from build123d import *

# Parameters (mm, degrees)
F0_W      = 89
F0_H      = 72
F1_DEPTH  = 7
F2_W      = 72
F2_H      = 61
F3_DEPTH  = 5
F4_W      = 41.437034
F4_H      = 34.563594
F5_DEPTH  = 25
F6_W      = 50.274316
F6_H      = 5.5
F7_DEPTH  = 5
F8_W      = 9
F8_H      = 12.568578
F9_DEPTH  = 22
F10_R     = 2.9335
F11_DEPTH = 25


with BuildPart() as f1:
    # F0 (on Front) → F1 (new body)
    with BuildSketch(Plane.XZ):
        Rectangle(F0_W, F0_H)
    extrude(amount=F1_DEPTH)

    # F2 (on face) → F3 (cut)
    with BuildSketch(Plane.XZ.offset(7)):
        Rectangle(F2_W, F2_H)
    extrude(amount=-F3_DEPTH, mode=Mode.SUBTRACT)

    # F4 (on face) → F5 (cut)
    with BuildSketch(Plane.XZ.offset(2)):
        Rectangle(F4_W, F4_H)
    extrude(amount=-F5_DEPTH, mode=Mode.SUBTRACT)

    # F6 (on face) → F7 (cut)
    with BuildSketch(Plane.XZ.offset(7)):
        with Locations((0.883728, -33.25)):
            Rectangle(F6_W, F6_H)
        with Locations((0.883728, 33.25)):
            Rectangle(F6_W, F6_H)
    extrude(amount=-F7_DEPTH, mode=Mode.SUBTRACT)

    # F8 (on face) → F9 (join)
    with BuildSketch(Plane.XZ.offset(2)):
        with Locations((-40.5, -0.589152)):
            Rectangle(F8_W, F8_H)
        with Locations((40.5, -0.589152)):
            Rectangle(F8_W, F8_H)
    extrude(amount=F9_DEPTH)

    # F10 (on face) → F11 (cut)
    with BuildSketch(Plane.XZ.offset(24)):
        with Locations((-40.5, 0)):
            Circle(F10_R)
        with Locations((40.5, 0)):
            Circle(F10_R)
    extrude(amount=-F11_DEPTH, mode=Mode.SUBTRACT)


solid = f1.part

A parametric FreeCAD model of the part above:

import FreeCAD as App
import Part
import Sketcher
from FreeCAD import Vector
Q = App.Units.Quantity

doc = App.newDocument("Part")
body = doc.addObject("PartDesign::Body", "Body")

sketch1 = body.newObject("Sketcher::SketchObject", "Sketch")
sketch1.AttachmentSupport = (doc.getObject("XZ_Plane"), [""])
sketch1.MapMode = "FlatFace"
sketch1.addGeometry(Part.LineSegment(Vector(-44, 36, 0), Vector(-44, -36, 0)), False)
sketch1.addGeometry(Part.LineSegment(Vector(-44, -36, 0), Vector(44, -36, 0)), False)
sketch1.addGeometry(Part.LineSegment(Vector(44, -36, 0), Vector(44, 36, 0)), False)
sketch1.addGeometry(Part.LineSegment(Vector(44, 36, 0), Vector(-44, 36, 0)), False)
sketch1.addConstraint(Sketcher.Constraint("Coincident", 0, 2, 1, 1))
sketch1.addConstraint(Sketcher.Constraint("Coincident", 1, 2, 2, 1))
sketch1.addConstraint(Sketcher.Constraint("Coincident", 2, 2, 3, 1))
sketch1.addConstraint(Sketcher.Constraint("Coincident", 3, 2, 0, 1))
sketch1.addConstraint(Sketcher.Constraint("Vertical", 0))
sketch1.addConstraint(Sketcher.Constraint("Horizontal", 1))
sketch1.addConstraint(Sketcher.Constraint("Vertical", 2))
sketch1.addConstraint(Sketcher.Constraint("Horizontal", 3))
sketch1.addConstraint(Sketcher.Constraint("Symmetric", 0, 2, 2, 2, -1, 1))
sketch1.addConstraint(Sketcher.Constraint("DistanceX", 1, 1, 1, 2, Q("89 mm")))
sketch1.addConstraint(Sketcher.Constraint("DistanceY", 0, 2, 0, 1, Q("72 mm")))
pad1 = body.newObject("PartDesign::Pad", "Pad")
pad1.Profile = sketch1
pad1.Length = 7

sketch2 = body.newObject("Sketcher::SketchObject", "Sketch001")
sketch2.AttachmentSupport = (doc.getObject("XZ_Plane"), [""])
sketch2.MapMode = "FlatFace"
sketch2.AttachmentOffset = App.Placement(Vector(0, 0, 7), App.Rotation())
sketch2.addGeometry(Part.LineSegment(Vector(-36, 30, 0), Vector(-36, -30, 0)), False)
sketch2.addGeometry(Part.LineSegment(Vector(-36, -30, 0), Vector(36, -30, 0)), False)
sketch2.addGeometry(Part.LineSegment(Vector(36, -30, 0), Vector(36, 30, 0)), False)
sketch2.addGeometry(Part.LineSegment(Vector(36, 30, 0), Vector(-36, 30, 0)), False)
sketch2.addConstraint(Sketcher.Constraint("Coincident", 0, 2, 1, 1))
sketch2.addConstraint(Sketcher.Constraint("Coincident", 1, 2, 2, 1))
sketch2.addConstraint(Sketcher.Constraint("Coincident", 2, 2, 3, 1))
sketch2.addConstraint(Sketcher.Constraint("Coincident", 3, 2, 0, 1))
sketch2.addConstraint(Sketcher.Constraint("Vertical", 0))
sketch2.addConstraint(Sketcher.Constraint("Horizontal", 1))
sketch2.addConstraint(Sketcher.Constraint("Vertical", 2))
sketch2.addConstraint(Sketcher.Constraint("Horizontal", 3))
sketch2.addConstraint(Sketcher.Constraint("Symmetric", 0, 2, 2, 2, -1, 1))
sketch2.addConstraint(Sketcher.Constraint("DistanceX", 1, 1, 1, 2, Q("72 mm")))
sketch2.addConstraint(Sketcher.Constraint("DistanceY", 0, 2, 0, 1, Q("61 mm")))
pocket1 = body.newObject("PartDesign::Pocket", "Pocket")
pocket1.Profile = sketch2
pocket1.Length = 5

sketch3 = body.newObject("Sketcher::SketchObject", "Sketch002")
sketch3.AttachmentSupport = (doc.getObject("XZ_Plane"), [""])
sketch3.MapMode = "FlatFace"
sketch3.AttachmentOffset = App.Placement(Vector(0, 0, 2), App.Rotation())
sketch3.addGeometry(Part.LineSegment(Vector(-21, 17, 0), Vector(-21, -17, 0)), False)
sketch3.addGeometry(Part.LineSegment(Vector(-21, -17, 0), Vector(21, -17, 0)), False)
sketch3.addGeometry(Part.LineSegment(Vector(21, -17, 0), Vector(21, 17, 0)), False)
sketch3.addGeometry(Part.LineSegment(Vector(21, 17, 0), Vector(-21, 17, 0)), False)
sketch3.addConstraint(Sketcher.Constraint("Coincident", 0, 2, 1, 1))
sketch3.addConstraint(Sketcher.Constraint("Coincident", 1, 2, 2, 1))
sketch3.addConstraint(Sketcher.Constraint("Coincident", 2, 2, 3, 1))
sketch3.addConstraint(Sketcher.Constraint("Coincident", 3, 2, 0, 1))
sketch3.addConstraint(Sketcher.Constraint("Vertical", 0))
sketch3.addConstraint(Sketcher.Constraint("Horizontal", 1))
sketch3.addConstraint(Sketcher.Constraint("Vertical", 2))
sketch3.addConstraint(Sketcher.Constraint("Horizontal", 3))
sketch3.addConstraint(Sketcher.Constraint("Symmetric", 0, 2, 2, 2, -1, 1))
sketch3.addConstraint(Sketcher.Constraint("DistanceX", 1, 1, 1, 2, Q("41.437034 mm")))
sketch3.addConstraint(Sketcher.Constraint("DistanceY", 0, 2, 0, 1, Q("34.563594 mm")))
pocket2 = body.newObject("PartDesign::Pocket", "Pocket001")
pocket2.Profile = sketch3
pocket2.Length = 25

sketch4 = body.newObject("Sketcher::SketchObject", "Sketch003")
sketch4.AttachmentSupport = (doc.getObject("XZ_Plane"), [""])
sketch4.MapMode = "FlatFace"
sketch4.AttachmentOffset = App.Placement(Vector(0, 0, 7), App.Rotation())
sketch4.addGeometry(Part.LineSegment(Vector(-24, -30, 0), Vector(-24, -36, 0)), False)
sketch4.addGeometry(Part.LineSegment(Vector(-24, -36, 0), Vector(26, -36, 0)), False)
sketch4.addGeometry(Part.LineSegment(Vector(26, -36, 0), Vector(26, -30, 0)), False)
sketch4.addGeometry(Part.LineSegment(Vector(26, -30, 0), Vector(-24, -30, 0)), False)
sketch4.addGeometry(Part.LineSegment(Vector(-24, 36, 0), Vector(-24, 30, 0)), False)
sketch4.addGeometry(Part.LineSegment(Vector(-24, 30, 0), Vector(26, 30, 0)), False)
sketch4.addGeometry(Part.LineSegment(Vector(26, 30, 0), Vector(26, 36, 0)), False)
sketch4.addGeometry(Part.LineSegment(Vector(26, 36, 0), Vector(-24, 36, 0)), False)
sketch4.addConstraint(Sketcher.Constraint("Coincident", 0, 2, 1, 1))
sketch4.addConstraint(Sketcher.Constraint("Coincident", 1, 2, 2, 1))
sketch4.addConstraint(Sketcher.Constraint("Coincident", 2, 2, 3, 1))
sketch4.addConstraint(Sketcher.Constraint("Coincident", 3, 2, 0, 1))
sketch4.addConstraint(Sketcher.Constraint("Coincident", 4, 2, 5, 1))
sketch4.addConstraint(Sketcher.Constraint("Coincident", 5, 2, 6, 1))
sketch4.addConstraint(Sketcher.Constraint("Coincident", 6, 2, 7, 1))
sketch4.addConstraint(Sketcher.Constraint("Coincident", 7, 2, 4, 1))
sketch4.addConstraint(Sketcher.Constraint("Vertical", 0))
sketch4.addConstraint(Sketcher.Constraint("Horizontal", 1))
sketch4.addConstraint(Sketcher.Constraint("Vertical", 2))
sketch4.addConstraint(Sketcher.Constraint("Horizontal", 3))
sketch4.addConstraint(Sketcher.Constraint("Vertical", 4))
sketch4.addConstraint(Sketcher.Constraint("Horizontal", 5))
sketch4.addConstraint(Sketcher.Constraint("Vertical", 6))
sketch4.addConstraint(Sketcher.Constraint("Horizontal", 7))
sketch4.addConstraint(Sketcher.Constraint("Symmetric", 3, 2, 4, 2, -1))
sketch4.addConstraint(Sketcher.Constraint("Symmetric", 1, 2, 6, 2, -1))
sketch4.addConstraint(Sketcher.Constraint("DistanceY", 0, 2, 0, 1, Q("5.5 mm")))
sketch4.addConstraint(Sketcher.Constraint("DistanceY", 0, 2, -1, 1, Q("36 mm")))
sketch4.addConstraint(Sketcher.Constraint("DistanceX", 1, 1, 1, 2, Q("50.274316 mm")))
sketch4.addConstraint(Sketcher.Constraint("DistanceX", 0, 2, -1, 1, Q("24.25343 mm")))
pocket3 = body.newObject("PartDesign::Pocket", "Pocket002")
pocket3.Profile = sketch4
pocket3.Length = 5

sketch5 = body.newObject("Sketcher::SketchObject", "Sketch004")
sketch5.AttachmentSupport = (doc.getObject("XZ_Plane"), [""])
sketch5.MapMode = "FlatFace"
sketch5.AttachmentOffset = App.Placement(Vector(0, 0, 2), App.Rotation())
sketch5.addGeometry(Part.LineSegment(Vector(-45, 6, 0), Vector(-45, -7, 0)), False)
sketch5.addGeometry(Part.LineSegment(Vector(-45, -7, 0), Vector(-36, -7, 0)), False)
sketch5.addGeometry(Part.LineSegment(Vector(-36, -7, 0), Vector(-36, 6, 0)), False)
sketch5.addGeometry(Part.LineSegment(Vector(-36, 6, 0), Vector(-45, 6, 0)), False)
sketch5.addGeometry(Part.LineSegment(Vector(36, 6, 0), Vector(36, -7, 0)), False)
sketch5.addGeometry(Part.LineSegment(Vector(36, -7, 0), Vector(45, -7, 0)), False)
sketch5.addGeometry(Part.LineSegment(Vector(45, -7, 0), Vector(45, 6, 0)), False)
sketch5.addGeometry(Part.LineSegment(Vector(45, 6, 0), Vector(36, 6, 0)), False)
sketch5.addConstraint(Sketcher.Constraint("Coincident", 0, 2, 1, 1))
sketch5.addConstraint(Sketcher.Constraint("Coincident", 1, 2, 2, 1))
sketch5.addConstraint(Sketcher.Constraint("Coincident", 2, 2, 3, 1))
sketch5.addConstraint(Sketcher.Constraint("Coincident", 3, 2, 0, 1))
sketch5.addConstraint(Sketcher.Constraint("Coincident", 4, 2, 5, 1))
sketch5.addConstraint(Sketcher.Constraint("Coincident", 5, 2, 6, 1))
sketch5.addConstraint(Sketcher.Constraint("Coincident", 6, 2, 7, 1))
sketch5.addConstraint(Sketcher.Constraint("Coincident", 7, 2, 4, 1))
sketch5.addConstraint(Sketcher.Constraint("Vertical", 0))
sketch5.addConstraint(Sketcher.Constraint("Horizontal", 1))
sketch5.addConstraint(Sketcher.Constraint("Vertical", 2))
sketch5.addConstraint(Sketcher.Constraint("Horizontal", 3))
sketch5.addConstraint(Sketcher.Constraint("Vertical", 4))
sketch5.addConstraint(Sketcher.Constraint("Horizontal", 5))
sketch5.addConstraint(Sketcher.Constraint("Vertical", 6))
sketch5.addConstraint(Sketcher.Constraint("Horizontal", 7))
sketch5.addConstraint(Sketcher.Constraint("Symmetric", 1, 2, 4, 2, -2))
sketch5.addConstraint(Sketcher.Constraint("Symmetric", 3, 2, 6, 2, -2))
sketch5.addConstraint(Sketcher.Constraint("DistanceX", 1, 1, 1, 2, Q("9 mm")))
sketch5.addConstraint(Sketcher.Constraint("DistanceX", 0, 2, -1, 1, Q("45 mm")))
sketch5.addConstraint(Sketcher.Constraint("DistanceY", 0, 2, 0, 1, Q("12.568578 mm")))
sketch5.addConstraint(Sketcher.Constraint("DistanceY", 0, 2, -1, 1, Q("6.873441 mm")))
pad2 = body.newObject("PartDesign::Pad", "Pad001")
pad2.Profile = sketch5
pad2.Length = 22

sketch6 = body.newObject("Sketcher::SketchObject", "Sketch005")
sketch6.AttachmentSupport = (doc.getObject("XZ_Plane"), [""])
sketch6.MapMode = "FlatFace"
sketch6.AttachmentOffset = App.Placement(Vector(0, 0, 24), App.Rotation())
sketch6.addGeometry(Part.Circle(Vector(-40.5, 0, 0), Vector(0, 0, 1), 2.9), False)
sketch6.addGeometry(Part.Circle(Vector(40.5, 0, 0), Vector(0, 0, 1), 2.9), False)
sketch6.addConstraint(Sketcher.Constraint("Equal", 0, 1))
sketch6.addConstraint(Sketcher.Constraint("Symmetric", 0, 3, 1, 3, -1, 1))
sketch6.addConstraint(Sketcher.Constraint("PointOnObject", 0, 3, -1))
sketch6.addConstraint(Sketcher.Constraint("Diameter", 0, Q("5.867 mm")))
sketch6.addConstraint(Sketcher.Constraint("DistanceX", 0, 3, 1, 3, Q("81 mm")))
pocket4 = body.newObject("PartDesign::Pocket", "Pocket003")
pocket4.Profile = sketch6
pocket4.Length = 25

doc.recompute()
